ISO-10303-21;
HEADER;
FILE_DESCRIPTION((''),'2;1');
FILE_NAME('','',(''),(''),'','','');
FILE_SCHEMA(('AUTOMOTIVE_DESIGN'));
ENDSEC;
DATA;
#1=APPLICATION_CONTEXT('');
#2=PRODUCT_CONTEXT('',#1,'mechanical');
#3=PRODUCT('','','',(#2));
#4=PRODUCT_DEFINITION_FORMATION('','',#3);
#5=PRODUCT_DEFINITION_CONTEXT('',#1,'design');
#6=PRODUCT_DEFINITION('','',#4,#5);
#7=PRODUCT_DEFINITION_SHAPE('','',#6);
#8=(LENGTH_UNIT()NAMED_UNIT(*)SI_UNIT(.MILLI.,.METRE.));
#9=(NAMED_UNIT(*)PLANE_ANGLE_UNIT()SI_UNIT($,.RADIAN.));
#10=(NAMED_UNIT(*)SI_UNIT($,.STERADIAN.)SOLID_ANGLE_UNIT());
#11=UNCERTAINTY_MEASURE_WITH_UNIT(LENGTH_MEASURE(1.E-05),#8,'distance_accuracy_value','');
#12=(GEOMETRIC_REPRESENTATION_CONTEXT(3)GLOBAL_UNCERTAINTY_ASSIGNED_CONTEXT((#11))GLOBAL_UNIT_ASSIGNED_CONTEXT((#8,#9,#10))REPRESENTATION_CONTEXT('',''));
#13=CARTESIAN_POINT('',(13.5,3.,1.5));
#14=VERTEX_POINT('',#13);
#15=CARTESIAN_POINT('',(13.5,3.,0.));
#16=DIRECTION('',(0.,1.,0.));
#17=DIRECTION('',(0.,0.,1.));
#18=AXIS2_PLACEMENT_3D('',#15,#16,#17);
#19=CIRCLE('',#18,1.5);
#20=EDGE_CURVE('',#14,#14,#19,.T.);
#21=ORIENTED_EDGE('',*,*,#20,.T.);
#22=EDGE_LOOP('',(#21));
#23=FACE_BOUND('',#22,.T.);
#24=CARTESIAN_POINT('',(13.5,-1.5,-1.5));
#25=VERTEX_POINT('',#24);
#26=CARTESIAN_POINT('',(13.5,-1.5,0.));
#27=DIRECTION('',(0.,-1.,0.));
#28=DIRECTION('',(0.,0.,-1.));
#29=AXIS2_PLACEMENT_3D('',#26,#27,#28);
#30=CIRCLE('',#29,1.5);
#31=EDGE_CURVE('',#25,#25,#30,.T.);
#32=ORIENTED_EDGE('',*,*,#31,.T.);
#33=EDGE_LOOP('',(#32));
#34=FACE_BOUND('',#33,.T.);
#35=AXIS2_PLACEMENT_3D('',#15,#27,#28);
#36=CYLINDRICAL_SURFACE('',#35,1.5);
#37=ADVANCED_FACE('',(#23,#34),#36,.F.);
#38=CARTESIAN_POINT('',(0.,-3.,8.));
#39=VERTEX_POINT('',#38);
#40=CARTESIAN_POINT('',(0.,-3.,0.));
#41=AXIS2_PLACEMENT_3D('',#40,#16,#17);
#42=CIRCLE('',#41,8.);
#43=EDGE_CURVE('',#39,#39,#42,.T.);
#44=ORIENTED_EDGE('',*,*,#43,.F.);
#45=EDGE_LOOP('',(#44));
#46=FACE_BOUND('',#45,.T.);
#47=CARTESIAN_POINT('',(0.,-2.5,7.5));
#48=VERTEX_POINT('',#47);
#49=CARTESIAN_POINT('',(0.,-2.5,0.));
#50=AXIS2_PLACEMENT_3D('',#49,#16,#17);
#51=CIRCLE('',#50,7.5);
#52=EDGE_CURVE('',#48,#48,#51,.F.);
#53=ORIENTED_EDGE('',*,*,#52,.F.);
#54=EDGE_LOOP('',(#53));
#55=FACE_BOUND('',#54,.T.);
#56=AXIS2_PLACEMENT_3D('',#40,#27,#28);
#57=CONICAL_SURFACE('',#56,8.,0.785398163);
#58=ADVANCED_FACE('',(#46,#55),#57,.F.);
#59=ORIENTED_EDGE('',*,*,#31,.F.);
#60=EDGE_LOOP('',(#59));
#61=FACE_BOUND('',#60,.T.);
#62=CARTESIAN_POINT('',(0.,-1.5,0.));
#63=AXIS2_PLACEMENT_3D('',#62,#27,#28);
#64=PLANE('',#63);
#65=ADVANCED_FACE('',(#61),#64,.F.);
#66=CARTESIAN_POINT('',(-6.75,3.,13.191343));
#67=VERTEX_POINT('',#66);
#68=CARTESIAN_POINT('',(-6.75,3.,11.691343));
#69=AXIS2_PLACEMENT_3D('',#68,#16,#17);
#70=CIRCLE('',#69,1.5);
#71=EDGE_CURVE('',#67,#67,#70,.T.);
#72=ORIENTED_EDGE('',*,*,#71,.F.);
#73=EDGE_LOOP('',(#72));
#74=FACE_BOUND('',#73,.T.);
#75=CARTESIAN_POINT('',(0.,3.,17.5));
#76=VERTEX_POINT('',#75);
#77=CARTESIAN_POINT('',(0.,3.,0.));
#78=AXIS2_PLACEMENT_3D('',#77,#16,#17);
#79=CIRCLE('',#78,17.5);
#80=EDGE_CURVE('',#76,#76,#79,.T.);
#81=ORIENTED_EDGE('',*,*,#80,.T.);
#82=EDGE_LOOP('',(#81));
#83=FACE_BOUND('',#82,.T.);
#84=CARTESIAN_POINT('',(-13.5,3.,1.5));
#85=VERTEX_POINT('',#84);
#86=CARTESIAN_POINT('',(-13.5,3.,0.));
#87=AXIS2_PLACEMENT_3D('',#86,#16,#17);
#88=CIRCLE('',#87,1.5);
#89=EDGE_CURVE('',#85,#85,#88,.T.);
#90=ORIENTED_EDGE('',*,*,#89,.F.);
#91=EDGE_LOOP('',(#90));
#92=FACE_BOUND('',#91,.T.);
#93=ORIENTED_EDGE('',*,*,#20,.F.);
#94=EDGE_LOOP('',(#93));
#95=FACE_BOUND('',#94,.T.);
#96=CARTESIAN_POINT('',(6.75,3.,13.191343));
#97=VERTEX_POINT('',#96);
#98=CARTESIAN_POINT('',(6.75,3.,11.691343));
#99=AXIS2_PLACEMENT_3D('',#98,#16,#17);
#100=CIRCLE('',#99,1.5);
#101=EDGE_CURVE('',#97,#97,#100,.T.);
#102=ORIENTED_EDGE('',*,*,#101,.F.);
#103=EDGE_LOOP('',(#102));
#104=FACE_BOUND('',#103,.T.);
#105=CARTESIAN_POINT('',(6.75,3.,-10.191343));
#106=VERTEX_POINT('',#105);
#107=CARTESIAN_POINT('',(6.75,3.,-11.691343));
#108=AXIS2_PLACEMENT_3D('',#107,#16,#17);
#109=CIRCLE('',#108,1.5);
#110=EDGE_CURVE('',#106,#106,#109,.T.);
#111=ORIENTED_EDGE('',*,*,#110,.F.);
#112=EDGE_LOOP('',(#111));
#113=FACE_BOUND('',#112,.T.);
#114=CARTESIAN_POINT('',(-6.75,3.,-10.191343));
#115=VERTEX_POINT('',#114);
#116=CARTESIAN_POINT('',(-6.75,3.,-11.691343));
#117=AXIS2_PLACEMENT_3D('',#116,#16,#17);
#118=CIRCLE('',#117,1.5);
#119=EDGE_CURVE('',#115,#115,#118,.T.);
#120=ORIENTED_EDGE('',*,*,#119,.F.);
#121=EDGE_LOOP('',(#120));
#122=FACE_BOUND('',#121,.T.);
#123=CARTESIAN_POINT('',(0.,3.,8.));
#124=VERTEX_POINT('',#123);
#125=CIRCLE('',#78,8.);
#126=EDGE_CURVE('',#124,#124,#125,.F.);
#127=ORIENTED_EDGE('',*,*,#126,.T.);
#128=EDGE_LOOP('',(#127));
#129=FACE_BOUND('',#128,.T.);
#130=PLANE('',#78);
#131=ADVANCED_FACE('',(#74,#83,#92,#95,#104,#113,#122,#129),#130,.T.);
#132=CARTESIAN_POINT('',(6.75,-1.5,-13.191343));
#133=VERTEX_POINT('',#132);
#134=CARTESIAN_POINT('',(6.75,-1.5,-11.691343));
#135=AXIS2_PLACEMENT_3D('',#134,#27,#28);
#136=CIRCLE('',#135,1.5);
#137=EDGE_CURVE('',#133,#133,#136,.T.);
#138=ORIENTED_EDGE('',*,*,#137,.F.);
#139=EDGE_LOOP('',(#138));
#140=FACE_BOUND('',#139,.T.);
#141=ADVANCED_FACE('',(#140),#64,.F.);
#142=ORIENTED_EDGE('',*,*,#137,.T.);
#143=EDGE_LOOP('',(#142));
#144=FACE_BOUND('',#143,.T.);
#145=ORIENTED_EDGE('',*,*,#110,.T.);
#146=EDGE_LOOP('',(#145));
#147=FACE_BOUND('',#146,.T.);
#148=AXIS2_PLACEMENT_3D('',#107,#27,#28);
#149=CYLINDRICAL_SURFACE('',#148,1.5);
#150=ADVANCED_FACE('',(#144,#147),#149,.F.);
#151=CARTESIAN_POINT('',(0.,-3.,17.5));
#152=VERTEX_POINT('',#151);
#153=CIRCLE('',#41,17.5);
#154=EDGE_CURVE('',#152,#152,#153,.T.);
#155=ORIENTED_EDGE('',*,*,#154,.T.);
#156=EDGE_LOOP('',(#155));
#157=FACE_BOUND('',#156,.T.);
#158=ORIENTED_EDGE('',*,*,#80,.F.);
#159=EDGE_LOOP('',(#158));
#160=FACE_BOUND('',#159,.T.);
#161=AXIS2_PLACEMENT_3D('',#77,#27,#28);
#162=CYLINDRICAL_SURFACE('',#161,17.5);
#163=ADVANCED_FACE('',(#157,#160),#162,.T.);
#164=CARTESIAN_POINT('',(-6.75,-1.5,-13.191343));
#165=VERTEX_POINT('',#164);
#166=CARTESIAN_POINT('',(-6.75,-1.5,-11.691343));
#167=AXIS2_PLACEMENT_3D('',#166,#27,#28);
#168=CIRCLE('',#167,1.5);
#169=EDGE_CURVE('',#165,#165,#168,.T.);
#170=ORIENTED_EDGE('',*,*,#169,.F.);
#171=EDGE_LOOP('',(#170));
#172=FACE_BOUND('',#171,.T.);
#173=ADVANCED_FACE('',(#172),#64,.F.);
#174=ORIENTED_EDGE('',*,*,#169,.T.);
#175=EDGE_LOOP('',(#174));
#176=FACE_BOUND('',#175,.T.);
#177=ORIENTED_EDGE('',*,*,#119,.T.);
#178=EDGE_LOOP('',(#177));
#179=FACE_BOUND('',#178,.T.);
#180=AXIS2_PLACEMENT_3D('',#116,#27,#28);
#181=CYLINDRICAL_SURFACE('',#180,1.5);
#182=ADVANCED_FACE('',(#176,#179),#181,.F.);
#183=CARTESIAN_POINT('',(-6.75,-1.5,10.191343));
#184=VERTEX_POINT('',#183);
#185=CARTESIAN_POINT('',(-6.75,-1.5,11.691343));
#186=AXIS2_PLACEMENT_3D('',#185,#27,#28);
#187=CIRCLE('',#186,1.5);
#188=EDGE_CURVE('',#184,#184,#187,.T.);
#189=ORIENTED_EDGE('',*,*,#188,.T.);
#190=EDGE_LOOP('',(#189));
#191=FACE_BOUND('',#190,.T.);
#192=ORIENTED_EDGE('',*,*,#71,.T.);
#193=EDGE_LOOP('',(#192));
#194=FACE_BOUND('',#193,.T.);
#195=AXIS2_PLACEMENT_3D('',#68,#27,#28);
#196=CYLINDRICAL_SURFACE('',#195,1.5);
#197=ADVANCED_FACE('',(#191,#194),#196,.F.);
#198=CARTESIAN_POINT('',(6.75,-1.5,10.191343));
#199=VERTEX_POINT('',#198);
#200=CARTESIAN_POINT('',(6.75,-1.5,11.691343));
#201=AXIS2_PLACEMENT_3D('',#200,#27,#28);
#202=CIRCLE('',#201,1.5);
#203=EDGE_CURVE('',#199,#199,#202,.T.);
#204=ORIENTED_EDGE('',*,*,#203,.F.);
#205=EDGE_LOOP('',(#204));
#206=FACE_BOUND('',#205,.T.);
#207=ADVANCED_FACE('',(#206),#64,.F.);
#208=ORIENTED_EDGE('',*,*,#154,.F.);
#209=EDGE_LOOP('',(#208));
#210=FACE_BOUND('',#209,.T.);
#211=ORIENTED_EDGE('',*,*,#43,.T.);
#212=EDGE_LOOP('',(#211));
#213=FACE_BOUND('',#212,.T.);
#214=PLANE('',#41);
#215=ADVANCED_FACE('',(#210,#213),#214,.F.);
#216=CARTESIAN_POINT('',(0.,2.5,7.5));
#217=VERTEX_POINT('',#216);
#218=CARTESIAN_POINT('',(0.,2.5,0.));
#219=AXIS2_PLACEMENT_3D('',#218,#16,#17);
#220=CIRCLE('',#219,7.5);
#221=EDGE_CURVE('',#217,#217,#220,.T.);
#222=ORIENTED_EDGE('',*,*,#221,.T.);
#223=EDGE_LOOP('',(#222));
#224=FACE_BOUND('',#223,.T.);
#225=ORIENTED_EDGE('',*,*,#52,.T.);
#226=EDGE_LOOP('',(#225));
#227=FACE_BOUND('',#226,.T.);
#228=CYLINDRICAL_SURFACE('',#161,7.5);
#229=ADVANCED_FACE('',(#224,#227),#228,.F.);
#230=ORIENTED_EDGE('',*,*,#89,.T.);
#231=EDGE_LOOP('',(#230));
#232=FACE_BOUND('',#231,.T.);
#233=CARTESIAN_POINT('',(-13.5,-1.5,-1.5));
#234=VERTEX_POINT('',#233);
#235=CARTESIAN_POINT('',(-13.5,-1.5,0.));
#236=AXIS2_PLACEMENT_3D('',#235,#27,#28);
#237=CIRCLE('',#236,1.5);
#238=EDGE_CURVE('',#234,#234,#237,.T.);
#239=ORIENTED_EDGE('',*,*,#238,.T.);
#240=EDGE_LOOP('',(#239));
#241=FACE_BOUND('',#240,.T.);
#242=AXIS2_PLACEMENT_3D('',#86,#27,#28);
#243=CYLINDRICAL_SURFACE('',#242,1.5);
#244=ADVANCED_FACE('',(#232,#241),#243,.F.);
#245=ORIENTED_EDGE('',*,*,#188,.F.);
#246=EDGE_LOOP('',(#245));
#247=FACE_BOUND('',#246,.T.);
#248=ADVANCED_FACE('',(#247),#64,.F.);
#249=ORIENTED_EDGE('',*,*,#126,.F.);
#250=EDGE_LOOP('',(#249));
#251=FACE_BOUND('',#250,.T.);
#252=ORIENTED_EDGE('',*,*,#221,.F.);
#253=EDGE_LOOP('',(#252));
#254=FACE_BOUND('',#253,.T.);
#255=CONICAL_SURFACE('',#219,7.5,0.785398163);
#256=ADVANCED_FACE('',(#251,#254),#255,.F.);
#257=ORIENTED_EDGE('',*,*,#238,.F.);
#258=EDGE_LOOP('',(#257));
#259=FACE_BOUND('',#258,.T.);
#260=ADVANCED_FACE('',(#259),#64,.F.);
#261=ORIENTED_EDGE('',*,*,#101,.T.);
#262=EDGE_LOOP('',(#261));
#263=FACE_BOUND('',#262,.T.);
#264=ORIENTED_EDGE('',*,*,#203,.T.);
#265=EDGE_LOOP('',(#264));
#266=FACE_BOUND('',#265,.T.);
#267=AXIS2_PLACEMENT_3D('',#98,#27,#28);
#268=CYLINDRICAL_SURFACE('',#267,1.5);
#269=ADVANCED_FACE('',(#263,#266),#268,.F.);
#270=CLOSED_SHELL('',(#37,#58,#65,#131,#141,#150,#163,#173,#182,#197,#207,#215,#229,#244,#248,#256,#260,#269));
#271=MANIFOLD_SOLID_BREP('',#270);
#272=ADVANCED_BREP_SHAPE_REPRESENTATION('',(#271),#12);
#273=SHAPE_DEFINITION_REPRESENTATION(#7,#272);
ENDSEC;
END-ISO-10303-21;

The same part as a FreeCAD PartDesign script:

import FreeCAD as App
import Part
import Sketcher
from FreeCAD import Vector
Q = App.Units.Quantity


def edges_at(feature, points):
    """Names of the edges that pass closest to the given points."""
    edges = feature.Shape.Edges
    near = lambda p: min(range(len(edges)), key=lambda i: edges[i].distToShape(Part.Vertex(*p))[0])
    return sorted({f"Edge{near(p) + 1}" for p in points})

doc = App.newDocument("Part")
body = doc.addObject("PartDesign::Body", "Body")

# Sketch on XZ plane
sketch1 = body.newObject("Sketcher::SketchObject", "Sketch")
sketch1.AttachmentSupport = (doc.getObject("XZ_Plane"), [""])
sketch1.MapMode = "FlatFace"
sketch1.addGeometry([
    Part.Circle(Vector(0, 0, 0), Vector(0, 0, 1), 17.5),  # 0
    Part.Circle(Vector(-6.8, 11.7, 0), Vector(0, 0, 1), 1.5),  # 1
    Part.Circle(Vector(6.8, 11.7, 0), Vector(0, 0, 1), 1.5),  # 2
    Part.Circle(Vector(-13.5, 0, 0), Vector(0, 0, 1), 1.5),  # 3
    Part.Circle(Vector(-6.8, -11.7, 0), Vector(0, 0, 1), 1.5),  # 4
    Part.Circle(Vector(0, 0, 0), Vector(0, 0, 1), 7.5),  # 5
    Part.Circle(Vector(13.5, 0, 0), Vector(0, 0, 1), 1.5),  # 6
    Part.Circle(Vector(6.8, -11.7, 0), Vector(0, 0, 1), 1.5),  # 7
], False)
sketch1.addConstraint([
    Sketcher.Constraint("Coincident", 0, 3, -1, 1),
    Sketcher.Constraint("Coincident", 5, 3, -1, 1),
    Sketcher.Constraint("Equal", 1, 2),
    Sketcher.Constraint("Equal", 2, 3),
    Sketcher.Constraint("Equal", 3, 4),
    Sketcher.Constraint("Equal", 4, 6),
    Sketcher.Constraint("Equal", 6, 7),
    Sketcher.Constraint("Symmetric", 2, 3, 4, 3, -1, 1),
    Sketcher.Constraint("Symmetric", 3, 3, 6, 3, -1, 1),
    Sketcher.Constraint("Symmetric", 1, 3, 7, 3, -1, 1),
    Sketcher.Constraint("Symmetric", 1, 3, 2, 3, -2),
    Sketcher.Constraint("PointOnObject", 3, 3, -1),
    Sketcher.Constraint("Diameter", 0, Q("35 mm")),
    Sketcher.Constraint("Diameter", 1, Q("3 mm")),
    Sketcher.Constraint("Diameter", 5, Q("15 mm")),
    Sketcher.Constraint("DistanceX", 3, 3, -1, 1, Q("13.5 mm")),
    Sketcher.Constraint("DistanceX", 1, 3, 2, 3, Q("13.5 mm")),
    Sketcher.Constraint("DistanceY", -1, 1, 1, 3, Q("11.691343 mm")),
])
pad1 = body.newObject("PartDesign::Pad", "Pad")
pad1.Profile = sketch1
pad1.Length = 6
pad1.Midplane = True

# Sketch on XZ plane
sketch2 = body.newObject("Sketcher::SketchObject", "Sketch001")
sketch2.AttachmentSupport = (doc.getObject("XZ_Plane"), [""])
sketch2.MapMode = "FlatFace"
sketch2.AttachmentOffset = App.Placement(Vector(0, 0, 3), App.Rotation())
sketch2.addGeometry([
    Part.Circle(Vector(0, 0, 0), Vector(0, 0, 1), 15),
    Part.Circle(Vector(0, 0, 0), Vector(0, 0, 1), 12),
], False)
sketch2.addConstraint([
    Sketcher.Constraint("Coincident", 0, 3, -1, 1),
    Sketcher.Constraint("Coincident", 1, 3, -1, 1),
    Sketcher.Constraint("Diameter", 0, Q("30 mm")),
    Sketcher.Constraint("Diameter", 1, Q("24 mm")),
])
pad2 = body.newObject("PartDesign::Pad", "Pad001")
pad2.Profile = sketch2
pad2.Length = 1.5
pad2.Reversed = True
doc.recompute()

chamfer = body.newObject("PartDesign::Chamfer", "Chamfer")
chamfer.Base = (pad2, edges_at(pad2, [(-7.5, -3, 0), (-7.5, 3, 0)]))
chamfer.Size = 0.5

doc.recompute()
